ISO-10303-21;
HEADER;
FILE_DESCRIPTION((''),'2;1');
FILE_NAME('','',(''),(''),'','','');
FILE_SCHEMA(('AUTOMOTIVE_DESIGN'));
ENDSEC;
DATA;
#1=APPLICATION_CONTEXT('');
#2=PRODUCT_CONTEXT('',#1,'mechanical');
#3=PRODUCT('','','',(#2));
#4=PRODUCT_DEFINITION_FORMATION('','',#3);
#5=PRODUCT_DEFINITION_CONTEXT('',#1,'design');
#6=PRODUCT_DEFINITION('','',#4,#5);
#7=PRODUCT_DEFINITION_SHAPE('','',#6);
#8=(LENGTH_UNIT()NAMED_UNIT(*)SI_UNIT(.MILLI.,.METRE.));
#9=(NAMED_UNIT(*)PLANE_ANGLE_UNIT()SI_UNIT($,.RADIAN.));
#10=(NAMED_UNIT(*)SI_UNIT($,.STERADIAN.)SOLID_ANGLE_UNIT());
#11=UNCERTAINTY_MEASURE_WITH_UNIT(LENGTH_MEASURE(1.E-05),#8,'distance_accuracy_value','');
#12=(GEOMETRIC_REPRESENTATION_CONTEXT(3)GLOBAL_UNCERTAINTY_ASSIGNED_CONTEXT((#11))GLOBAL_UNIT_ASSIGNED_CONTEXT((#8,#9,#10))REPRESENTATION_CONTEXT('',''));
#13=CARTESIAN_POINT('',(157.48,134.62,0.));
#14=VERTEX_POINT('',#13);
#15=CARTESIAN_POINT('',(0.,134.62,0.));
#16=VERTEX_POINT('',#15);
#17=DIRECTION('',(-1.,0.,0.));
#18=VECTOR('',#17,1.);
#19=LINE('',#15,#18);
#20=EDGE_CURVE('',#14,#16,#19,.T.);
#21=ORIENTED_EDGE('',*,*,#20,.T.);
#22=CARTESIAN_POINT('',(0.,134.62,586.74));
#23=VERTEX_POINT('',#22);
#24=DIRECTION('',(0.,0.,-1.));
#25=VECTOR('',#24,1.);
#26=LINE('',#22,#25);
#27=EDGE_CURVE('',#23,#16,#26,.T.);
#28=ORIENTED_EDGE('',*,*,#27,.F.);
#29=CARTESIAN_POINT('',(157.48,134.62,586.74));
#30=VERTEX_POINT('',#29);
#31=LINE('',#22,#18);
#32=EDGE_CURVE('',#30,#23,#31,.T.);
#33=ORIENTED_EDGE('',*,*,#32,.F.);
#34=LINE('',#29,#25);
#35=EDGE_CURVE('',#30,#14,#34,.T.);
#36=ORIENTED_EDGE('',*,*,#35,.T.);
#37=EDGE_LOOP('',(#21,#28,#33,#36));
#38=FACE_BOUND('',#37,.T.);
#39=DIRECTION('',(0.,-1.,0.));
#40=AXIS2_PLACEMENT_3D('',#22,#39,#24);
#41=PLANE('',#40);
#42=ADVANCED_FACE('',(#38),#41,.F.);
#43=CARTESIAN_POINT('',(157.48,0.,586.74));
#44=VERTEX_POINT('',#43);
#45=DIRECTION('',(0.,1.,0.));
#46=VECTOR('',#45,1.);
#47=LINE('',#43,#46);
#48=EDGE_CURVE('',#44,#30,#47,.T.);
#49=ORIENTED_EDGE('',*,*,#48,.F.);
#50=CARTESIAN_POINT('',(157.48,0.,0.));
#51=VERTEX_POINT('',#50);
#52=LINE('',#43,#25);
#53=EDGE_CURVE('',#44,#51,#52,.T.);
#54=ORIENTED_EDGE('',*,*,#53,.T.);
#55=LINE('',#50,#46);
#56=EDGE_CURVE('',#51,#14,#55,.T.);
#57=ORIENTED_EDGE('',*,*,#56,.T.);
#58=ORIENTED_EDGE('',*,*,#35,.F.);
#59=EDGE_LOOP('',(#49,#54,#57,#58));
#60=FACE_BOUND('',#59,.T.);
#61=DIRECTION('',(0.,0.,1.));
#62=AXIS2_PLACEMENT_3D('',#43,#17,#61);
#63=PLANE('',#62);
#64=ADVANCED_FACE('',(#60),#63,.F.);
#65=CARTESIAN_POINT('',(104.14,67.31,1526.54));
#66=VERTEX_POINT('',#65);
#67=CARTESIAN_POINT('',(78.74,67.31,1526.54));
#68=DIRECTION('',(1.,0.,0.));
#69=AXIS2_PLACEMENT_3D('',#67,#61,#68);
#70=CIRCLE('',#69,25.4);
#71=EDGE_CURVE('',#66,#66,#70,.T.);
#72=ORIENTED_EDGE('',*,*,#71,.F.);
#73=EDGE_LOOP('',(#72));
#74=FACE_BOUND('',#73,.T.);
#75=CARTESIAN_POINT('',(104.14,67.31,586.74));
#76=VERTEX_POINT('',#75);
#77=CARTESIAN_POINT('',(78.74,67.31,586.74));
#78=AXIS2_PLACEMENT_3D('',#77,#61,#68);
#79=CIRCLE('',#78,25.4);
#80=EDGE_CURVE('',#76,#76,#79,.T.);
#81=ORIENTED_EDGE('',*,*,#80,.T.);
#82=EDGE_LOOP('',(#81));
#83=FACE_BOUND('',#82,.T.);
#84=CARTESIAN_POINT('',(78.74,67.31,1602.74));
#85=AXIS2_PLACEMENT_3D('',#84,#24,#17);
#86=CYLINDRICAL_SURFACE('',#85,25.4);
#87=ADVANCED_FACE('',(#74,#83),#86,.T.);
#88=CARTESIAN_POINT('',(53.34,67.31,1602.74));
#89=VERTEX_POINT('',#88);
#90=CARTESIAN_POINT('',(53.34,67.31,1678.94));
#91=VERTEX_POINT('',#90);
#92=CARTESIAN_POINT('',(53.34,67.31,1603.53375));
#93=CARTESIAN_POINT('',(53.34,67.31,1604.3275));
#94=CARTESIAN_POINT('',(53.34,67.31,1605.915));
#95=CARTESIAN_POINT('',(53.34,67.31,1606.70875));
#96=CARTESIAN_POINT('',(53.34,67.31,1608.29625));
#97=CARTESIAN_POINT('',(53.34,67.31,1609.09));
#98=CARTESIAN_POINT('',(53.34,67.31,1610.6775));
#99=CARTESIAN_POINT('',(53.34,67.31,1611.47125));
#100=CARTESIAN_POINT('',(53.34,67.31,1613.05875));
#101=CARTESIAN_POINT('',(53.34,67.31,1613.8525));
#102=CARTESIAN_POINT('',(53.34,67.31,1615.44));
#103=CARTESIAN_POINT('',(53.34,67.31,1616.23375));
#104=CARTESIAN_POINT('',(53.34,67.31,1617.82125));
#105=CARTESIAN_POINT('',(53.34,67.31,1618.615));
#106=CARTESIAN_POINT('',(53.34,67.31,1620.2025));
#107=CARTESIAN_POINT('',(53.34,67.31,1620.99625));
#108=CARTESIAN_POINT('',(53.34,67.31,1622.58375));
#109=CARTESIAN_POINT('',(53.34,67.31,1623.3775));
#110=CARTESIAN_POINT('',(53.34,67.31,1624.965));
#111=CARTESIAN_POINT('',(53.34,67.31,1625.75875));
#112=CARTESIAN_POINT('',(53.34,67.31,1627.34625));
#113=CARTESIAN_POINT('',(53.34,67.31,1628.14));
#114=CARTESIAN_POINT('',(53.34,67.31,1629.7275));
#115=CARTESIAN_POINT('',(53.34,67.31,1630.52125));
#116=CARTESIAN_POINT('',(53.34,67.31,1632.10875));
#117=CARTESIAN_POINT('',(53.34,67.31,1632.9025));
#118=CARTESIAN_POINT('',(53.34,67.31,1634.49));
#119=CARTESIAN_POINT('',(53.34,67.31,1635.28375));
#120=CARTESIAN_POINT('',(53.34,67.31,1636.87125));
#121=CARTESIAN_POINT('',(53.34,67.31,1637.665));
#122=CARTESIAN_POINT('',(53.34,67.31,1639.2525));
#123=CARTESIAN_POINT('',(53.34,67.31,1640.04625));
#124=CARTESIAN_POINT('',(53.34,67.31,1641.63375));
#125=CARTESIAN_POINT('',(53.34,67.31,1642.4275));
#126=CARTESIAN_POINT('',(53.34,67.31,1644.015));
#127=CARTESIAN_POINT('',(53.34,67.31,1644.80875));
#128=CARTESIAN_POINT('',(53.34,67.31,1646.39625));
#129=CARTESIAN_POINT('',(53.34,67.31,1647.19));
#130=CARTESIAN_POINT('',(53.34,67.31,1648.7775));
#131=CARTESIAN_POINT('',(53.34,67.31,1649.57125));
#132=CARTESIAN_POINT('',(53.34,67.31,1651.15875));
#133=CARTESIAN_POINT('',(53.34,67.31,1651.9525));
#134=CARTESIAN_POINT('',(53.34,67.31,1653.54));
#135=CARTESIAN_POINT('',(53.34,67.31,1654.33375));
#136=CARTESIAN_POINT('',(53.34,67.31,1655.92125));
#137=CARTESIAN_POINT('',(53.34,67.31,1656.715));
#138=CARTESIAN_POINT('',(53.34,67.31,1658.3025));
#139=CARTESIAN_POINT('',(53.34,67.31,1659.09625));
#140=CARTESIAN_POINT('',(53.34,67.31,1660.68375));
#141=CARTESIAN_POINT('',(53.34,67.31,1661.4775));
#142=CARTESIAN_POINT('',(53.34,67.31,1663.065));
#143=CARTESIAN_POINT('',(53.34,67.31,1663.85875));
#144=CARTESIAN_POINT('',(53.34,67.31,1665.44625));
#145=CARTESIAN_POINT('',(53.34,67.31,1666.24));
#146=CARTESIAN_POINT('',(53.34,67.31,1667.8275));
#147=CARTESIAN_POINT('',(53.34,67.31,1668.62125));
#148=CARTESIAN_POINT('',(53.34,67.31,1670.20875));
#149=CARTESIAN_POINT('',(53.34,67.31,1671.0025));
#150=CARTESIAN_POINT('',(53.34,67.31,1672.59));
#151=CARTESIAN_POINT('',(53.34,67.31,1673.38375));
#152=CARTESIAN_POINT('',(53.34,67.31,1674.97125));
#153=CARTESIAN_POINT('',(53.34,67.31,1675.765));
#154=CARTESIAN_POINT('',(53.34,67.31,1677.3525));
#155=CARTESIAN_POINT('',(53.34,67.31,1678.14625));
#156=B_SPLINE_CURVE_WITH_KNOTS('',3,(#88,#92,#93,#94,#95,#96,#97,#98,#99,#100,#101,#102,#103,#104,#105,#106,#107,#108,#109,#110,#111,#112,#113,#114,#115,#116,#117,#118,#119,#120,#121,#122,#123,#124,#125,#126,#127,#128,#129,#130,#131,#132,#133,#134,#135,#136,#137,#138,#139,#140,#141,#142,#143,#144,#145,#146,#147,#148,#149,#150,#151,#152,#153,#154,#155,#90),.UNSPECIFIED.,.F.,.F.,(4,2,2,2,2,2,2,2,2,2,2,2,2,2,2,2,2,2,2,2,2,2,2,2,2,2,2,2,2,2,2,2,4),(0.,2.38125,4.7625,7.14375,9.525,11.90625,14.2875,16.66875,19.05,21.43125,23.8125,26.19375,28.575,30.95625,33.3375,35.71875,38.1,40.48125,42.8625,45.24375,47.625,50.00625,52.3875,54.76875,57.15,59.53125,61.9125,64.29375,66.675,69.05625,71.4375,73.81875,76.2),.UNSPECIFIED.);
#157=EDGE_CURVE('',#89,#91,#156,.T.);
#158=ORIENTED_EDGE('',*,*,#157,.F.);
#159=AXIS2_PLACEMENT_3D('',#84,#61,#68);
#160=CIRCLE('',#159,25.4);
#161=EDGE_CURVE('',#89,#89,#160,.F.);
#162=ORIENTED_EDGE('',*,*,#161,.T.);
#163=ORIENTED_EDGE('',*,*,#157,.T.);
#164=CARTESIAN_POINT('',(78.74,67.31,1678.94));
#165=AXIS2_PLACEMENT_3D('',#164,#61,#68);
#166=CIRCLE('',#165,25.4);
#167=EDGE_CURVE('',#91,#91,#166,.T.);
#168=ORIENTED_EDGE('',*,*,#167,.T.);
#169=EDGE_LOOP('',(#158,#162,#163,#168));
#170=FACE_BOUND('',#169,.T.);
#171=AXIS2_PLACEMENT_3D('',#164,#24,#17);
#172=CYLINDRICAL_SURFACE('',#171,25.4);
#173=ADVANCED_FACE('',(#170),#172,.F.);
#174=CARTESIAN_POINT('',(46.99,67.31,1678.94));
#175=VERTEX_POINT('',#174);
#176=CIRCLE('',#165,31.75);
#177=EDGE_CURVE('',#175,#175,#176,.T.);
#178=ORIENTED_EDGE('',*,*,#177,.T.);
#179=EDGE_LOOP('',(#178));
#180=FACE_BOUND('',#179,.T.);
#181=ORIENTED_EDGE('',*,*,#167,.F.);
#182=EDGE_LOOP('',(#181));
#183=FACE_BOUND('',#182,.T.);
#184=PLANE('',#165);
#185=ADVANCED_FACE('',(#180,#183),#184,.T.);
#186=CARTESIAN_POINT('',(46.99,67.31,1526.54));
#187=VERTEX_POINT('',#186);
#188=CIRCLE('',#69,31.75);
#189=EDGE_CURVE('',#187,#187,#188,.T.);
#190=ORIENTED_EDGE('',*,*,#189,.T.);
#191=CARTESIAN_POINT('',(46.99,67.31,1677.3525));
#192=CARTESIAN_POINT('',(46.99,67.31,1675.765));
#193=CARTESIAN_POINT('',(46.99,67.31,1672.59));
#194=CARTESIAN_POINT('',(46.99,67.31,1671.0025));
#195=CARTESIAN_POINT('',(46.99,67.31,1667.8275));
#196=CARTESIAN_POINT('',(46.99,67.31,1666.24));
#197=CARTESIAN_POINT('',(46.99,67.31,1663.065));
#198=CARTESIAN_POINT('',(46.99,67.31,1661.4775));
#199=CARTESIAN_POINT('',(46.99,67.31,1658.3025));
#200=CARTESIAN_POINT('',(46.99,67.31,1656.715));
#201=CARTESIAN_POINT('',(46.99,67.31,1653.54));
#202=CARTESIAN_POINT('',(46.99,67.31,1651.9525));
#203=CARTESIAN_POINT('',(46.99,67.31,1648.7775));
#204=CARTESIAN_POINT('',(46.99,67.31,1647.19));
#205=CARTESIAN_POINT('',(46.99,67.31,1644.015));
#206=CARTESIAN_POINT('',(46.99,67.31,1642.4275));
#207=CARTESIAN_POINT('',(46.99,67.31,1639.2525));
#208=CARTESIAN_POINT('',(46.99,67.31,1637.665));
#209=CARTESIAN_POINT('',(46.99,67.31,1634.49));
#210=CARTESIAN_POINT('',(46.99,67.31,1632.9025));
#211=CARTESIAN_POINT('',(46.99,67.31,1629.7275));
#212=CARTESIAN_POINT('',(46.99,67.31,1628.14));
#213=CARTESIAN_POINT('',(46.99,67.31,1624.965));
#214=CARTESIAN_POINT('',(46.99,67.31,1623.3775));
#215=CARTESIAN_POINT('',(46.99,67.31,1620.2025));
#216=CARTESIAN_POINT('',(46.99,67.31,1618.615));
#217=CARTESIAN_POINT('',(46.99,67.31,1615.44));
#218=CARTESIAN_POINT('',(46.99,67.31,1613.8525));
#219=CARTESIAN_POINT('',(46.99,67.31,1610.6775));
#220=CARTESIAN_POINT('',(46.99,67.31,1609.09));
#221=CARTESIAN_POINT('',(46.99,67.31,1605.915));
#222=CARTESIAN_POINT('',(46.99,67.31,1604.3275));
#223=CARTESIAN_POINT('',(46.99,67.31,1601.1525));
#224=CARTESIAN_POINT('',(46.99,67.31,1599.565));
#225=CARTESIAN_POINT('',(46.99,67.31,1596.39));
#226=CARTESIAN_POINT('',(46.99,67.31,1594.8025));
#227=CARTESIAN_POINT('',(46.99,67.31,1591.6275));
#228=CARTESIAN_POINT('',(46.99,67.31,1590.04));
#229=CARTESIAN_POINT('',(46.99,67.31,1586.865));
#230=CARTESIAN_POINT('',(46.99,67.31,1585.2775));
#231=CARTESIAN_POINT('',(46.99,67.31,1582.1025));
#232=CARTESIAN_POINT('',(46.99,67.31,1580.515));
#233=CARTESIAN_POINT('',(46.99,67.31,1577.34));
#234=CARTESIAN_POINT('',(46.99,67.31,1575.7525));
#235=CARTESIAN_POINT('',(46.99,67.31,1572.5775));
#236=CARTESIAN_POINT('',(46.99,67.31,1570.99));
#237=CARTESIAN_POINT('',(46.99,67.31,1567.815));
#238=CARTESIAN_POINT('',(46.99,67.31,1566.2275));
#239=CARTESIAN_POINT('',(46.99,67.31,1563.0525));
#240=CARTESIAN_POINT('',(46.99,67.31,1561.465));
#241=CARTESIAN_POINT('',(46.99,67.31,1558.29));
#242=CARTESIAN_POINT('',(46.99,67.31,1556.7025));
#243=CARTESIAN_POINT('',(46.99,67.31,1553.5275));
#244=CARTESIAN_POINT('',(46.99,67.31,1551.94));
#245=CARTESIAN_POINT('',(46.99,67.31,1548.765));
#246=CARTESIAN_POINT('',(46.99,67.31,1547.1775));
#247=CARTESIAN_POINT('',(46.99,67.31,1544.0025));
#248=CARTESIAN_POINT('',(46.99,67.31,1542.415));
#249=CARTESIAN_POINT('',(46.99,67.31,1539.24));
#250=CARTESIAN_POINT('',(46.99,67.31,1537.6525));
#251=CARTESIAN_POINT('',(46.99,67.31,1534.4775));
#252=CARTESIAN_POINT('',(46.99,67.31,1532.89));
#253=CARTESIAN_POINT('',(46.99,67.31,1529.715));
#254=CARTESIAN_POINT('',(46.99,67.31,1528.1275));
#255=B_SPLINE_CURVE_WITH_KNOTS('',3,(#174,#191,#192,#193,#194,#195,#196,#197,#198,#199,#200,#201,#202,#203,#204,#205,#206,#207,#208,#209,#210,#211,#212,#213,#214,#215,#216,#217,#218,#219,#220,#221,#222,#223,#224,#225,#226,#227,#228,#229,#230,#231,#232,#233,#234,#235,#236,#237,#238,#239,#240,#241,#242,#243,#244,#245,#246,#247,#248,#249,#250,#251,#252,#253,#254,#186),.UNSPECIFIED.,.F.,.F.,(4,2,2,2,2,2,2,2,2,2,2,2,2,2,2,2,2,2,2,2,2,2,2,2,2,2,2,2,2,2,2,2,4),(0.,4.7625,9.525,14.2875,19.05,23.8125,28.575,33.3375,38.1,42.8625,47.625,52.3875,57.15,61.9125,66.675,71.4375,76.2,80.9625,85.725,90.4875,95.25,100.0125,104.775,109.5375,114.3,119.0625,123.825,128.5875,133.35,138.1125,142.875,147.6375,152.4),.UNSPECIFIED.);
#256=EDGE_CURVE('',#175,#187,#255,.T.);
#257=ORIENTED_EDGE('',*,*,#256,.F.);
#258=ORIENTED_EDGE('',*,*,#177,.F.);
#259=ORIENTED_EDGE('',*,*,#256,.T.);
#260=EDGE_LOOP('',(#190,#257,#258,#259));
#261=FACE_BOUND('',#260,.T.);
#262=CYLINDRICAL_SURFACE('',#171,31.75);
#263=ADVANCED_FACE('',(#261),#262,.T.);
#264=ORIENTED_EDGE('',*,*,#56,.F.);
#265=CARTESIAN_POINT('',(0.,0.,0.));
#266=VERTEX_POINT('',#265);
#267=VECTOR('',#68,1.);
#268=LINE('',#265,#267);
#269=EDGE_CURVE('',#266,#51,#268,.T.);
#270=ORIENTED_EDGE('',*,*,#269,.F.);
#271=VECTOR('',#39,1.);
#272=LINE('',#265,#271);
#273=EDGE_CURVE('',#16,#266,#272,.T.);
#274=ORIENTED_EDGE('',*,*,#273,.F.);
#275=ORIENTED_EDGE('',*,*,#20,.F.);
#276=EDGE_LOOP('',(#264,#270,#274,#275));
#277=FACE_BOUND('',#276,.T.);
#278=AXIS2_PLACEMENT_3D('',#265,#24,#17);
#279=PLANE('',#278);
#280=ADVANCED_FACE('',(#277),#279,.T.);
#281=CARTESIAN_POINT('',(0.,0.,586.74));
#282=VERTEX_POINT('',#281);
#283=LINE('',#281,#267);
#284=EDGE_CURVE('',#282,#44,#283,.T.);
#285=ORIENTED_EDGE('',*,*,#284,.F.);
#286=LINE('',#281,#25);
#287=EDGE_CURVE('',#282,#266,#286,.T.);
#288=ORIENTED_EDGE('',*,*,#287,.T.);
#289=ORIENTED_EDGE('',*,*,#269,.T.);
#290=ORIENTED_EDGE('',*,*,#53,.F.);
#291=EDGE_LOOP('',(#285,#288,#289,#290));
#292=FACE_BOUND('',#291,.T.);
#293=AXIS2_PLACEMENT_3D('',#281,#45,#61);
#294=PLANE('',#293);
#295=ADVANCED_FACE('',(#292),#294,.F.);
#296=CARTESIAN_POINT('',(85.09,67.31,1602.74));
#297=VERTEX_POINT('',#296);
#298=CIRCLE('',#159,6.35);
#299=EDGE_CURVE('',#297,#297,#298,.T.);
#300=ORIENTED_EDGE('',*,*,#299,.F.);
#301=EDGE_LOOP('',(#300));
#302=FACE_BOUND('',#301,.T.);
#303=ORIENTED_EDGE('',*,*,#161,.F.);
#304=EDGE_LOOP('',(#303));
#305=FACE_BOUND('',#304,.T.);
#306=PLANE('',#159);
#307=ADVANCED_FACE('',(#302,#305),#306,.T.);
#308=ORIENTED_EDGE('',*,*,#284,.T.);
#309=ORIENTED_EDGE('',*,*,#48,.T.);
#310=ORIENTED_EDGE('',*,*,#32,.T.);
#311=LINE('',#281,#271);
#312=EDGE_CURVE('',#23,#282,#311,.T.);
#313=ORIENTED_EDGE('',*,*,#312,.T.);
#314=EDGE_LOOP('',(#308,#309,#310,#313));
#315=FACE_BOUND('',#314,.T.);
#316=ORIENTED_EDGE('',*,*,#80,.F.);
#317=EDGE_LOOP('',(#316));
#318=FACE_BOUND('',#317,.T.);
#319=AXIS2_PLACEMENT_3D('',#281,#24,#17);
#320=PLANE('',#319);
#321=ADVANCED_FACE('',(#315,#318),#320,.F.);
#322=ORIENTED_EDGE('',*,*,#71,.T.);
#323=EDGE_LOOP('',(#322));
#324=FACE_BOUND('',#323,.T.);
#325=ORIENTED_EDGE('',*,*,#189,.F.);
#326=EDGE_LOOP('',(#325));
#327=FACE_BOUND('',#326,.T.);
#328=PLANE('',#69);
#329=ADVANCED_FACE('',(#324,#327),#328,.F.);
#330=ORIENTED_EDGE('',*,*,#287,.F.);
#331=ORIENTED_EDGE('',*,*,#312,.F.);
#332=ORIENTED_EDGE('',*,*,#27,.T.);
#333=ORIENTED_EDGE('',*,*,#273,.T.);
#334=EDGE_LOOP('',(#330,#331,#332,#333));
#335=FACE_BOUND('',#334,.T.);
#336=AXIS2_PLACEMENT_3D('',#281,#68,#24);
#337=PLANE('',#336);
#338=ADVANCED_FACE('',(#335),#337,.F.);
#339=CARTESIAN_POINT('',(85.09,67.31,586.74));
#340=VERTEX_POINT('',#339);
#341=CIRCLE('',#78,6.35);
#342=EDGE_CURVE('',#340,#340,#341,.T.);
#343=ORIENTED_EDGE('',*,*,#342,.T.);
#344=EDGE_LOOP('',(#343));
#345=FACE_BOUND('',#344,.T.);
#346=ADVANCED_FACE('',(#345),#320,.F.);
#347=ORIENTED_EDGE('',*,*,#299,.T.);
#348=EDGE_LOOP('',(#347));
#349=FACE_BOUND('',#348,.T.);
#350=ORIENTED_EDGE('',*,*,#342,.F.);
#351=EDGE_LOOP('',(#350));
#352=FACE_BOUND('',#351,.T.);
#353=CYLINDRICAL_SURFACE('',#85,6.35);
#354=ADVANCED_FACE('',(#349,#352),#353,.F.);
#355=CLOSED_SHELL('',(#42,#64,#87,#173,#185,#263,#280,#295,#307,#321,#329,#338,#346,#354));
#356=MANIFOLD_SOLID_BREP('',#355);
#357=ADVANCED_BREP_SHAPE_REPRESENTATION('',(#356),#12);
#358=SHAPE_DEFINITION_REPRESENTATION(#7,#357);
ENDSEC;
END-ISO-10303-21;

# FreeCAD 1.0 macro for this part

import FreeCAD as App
import Part
import Sketcher

V = App.Vector
Q = App.Units.Quantity


def add_polygon(sketch, points):
    """Adds a closed chain of lines whose ends are joined by coincident constraints."""
    first, n = sketch.GeometryCount, len(points)
    for a, b in zip(points, points[1:] + points[:1]):
        sketch.addGeometry(Part.LineSegment(App.Vector(*a, 0), App.Vector(*b, 0)), False)
    for i in range(n):
        sketch.addConstraint(Sketcher.Constraint("Coincident", first + i, 2, first + (i + 1) % n, 1))

doc = App.newDocument("Part")
params = doc.addObject("Spreadsheet::Sheet", "Params")
for row, (alias, value) in enumerate([
    ("sketch1_width", "6.2 in"),
    ("sketch1_height", "5.3 in"),
    ("pad1_length", "23.1 in"),
    ("sketch2_diameter", "2 in"),
    ("sketch2_diameter2", "0.5 in"),
    ("pad2_length", "40 in"),
    ("sketch3_diameter", "2 in"),
    ("sketch3_diameter2", "2.5 in"),
    ("pad3_length", "6 in"),
], start=1):
    params.set(f"A{row}", alias)
    params.set(f"B{row}", "=" + value)
    params.setAlias(f"B{row}", alias)

body = doc.addObject("PartDesign::Body", "Body")

# Sketch on XY plane
sketch1 = doc.addObject("Sketcher::SketchObject", "Sketch")
body.addObject(sketch1)
sketch1.AttachmentSupport = (doc.XY_Plane, [""])
sketch1.MapMode = "FlatFace"
add_polygon(sketch1, [(0, 135), (0, 0), (157, 0), (157, 135)])  # lines 0-3
sketch1.addConstraint(Sketcher.Constraint("Vertical", 0))
sketch1.addConstraint(Sketcher.Constraint("Horizontal", 1))
sketch1.addConstraint(Sketcher.Constraint("Vertical", 2))
sketch1.addConstraint(Sketcher.Constraint("Horizontal", 3))
sketch1.addConstraint(Sketcher.Constraint("Coincident", 0, 2, -1, 1))
sketch1.addConstraint(Sketcher.Constraint("DistanceX", 1, 1, 1, 2, Q("6.2 in")))
sketch1.addConstraint(Sketcher.Constraint("DistanceY", 0, 2, 0, 1, Q("5.3 in")))
sketch1.setExpression("Constraints[9]", "Params.sketch1_width")
sketch1.setExpression("Constraints[10]", "Params.sketch1_height")
pad1 = doc.addObject("PartDesign::Pad", "Pad")
body.addObject(pad1)
pad1.Profile = sketch1
pad1.setExpression("Length", "Params.pad1_length")

# Sketch on XY plane
sketch2 = doc.addObject("Sketcher::SketchObject", "Sketch001")
body.addObject(sketch2)
sketch2.AttachmentSupport = (doc.XY_Plane, [""])
sketch2.MapMode = "FlatFace"
sketch2.AttachmentOffset = App.Placement(V(0, 0, 23.1 * 25.4), App.Rotation())
sketch2.addGeometry(Part.Circle(V(79, 67, 0), V(0, 0, 1), 25), False)
sketch2.addGeometry(Part.Circle(V(79, 67, 0), V(0, 0, 1), 6), False)
sketch2.addConstraint(Sketcher.Constraint("Coincident", 1, 3, 0, 3))
sketch2.addConstraint(Sketcher.Constraint("Diameter", 0, Q("2 in")))
sketch2.addConstraint(Sketcher.Constraint("Diameter", 1, Q("0.5 in")))
sketch2.addConstraint(Sketcher.Constraint("DistanceX", -1, 1, 0, 3, Q("3.1 in")))
sketch2.addConstraint(Sketcher.Constraint("DistanceY", -1, 1, 0, 3, Q("2.65 in")))
sketch2.setExpression("Constraints[1]", "Params.sketch2_diameter")
sketch2.setExpression("Constraints[2]", "Params.sketch2_diameter2")
pad2 = doc.addObject("PartDesign::Pad", "Pad001")
body.addObject(pad2)
pad2.Profile = sketch2
pad2.setExpression("Length", "Params.pad2_length")

# Sketch on XY plane
sketch3 = doc.addObject("Sketcher::SketchObject", "Sketch002")
body.addObject(sketch3)
sketch3.AttachmentSupport = (doc.XY_Plane, [""])
sketch3.MapMode = "FlatFace"
sketch3.AttachmentOffset = App.Placement(V(0, 0, 63.1 * 25.4), App.Rotation())
sketch3.addGeometry(Part.Circle(V(79, 67, 0), V(0, 0, 1), 32), False)
sketch3.addGeometry(Part.Circle(V(79, 67, 0), V(0, 0, 1), 25), False)
sketch3.addConstraint(Sketcher.Constraint("Coincident", 1, 3, 0, 3))
sketch3.addConstraint(Sketcher.Constraint("Diameter", 1, Q("2 in")))
sketch3.addConstraint(Sketcher.Constraint("Diameter", 0, Q("2.5 in")))
sketch3.addConstraint(Sketcher.Constraint("DistanceX", -1, 1, 0, 3, Q("3.1 in")))
sketch3.addConstraint(Sketcher.Constraint("DistanceY", -1, 1, 0, 3, Q("2.65 in")))
sketch3.setExpression("Constraints[1]", "Params.sketch3_diameter")
sketch3.setExpression("Constraints[2]", "Params.sketch3_diameter2")
pad3 = doc.addObject("PartDesign::Pad", "Pad002")
body.addObject(pad3)
pad3.Profile = sketch3
pad3.setExpression("Length", "Params.pad3_length")
pad3.Midplane = True

doc.recompute()
